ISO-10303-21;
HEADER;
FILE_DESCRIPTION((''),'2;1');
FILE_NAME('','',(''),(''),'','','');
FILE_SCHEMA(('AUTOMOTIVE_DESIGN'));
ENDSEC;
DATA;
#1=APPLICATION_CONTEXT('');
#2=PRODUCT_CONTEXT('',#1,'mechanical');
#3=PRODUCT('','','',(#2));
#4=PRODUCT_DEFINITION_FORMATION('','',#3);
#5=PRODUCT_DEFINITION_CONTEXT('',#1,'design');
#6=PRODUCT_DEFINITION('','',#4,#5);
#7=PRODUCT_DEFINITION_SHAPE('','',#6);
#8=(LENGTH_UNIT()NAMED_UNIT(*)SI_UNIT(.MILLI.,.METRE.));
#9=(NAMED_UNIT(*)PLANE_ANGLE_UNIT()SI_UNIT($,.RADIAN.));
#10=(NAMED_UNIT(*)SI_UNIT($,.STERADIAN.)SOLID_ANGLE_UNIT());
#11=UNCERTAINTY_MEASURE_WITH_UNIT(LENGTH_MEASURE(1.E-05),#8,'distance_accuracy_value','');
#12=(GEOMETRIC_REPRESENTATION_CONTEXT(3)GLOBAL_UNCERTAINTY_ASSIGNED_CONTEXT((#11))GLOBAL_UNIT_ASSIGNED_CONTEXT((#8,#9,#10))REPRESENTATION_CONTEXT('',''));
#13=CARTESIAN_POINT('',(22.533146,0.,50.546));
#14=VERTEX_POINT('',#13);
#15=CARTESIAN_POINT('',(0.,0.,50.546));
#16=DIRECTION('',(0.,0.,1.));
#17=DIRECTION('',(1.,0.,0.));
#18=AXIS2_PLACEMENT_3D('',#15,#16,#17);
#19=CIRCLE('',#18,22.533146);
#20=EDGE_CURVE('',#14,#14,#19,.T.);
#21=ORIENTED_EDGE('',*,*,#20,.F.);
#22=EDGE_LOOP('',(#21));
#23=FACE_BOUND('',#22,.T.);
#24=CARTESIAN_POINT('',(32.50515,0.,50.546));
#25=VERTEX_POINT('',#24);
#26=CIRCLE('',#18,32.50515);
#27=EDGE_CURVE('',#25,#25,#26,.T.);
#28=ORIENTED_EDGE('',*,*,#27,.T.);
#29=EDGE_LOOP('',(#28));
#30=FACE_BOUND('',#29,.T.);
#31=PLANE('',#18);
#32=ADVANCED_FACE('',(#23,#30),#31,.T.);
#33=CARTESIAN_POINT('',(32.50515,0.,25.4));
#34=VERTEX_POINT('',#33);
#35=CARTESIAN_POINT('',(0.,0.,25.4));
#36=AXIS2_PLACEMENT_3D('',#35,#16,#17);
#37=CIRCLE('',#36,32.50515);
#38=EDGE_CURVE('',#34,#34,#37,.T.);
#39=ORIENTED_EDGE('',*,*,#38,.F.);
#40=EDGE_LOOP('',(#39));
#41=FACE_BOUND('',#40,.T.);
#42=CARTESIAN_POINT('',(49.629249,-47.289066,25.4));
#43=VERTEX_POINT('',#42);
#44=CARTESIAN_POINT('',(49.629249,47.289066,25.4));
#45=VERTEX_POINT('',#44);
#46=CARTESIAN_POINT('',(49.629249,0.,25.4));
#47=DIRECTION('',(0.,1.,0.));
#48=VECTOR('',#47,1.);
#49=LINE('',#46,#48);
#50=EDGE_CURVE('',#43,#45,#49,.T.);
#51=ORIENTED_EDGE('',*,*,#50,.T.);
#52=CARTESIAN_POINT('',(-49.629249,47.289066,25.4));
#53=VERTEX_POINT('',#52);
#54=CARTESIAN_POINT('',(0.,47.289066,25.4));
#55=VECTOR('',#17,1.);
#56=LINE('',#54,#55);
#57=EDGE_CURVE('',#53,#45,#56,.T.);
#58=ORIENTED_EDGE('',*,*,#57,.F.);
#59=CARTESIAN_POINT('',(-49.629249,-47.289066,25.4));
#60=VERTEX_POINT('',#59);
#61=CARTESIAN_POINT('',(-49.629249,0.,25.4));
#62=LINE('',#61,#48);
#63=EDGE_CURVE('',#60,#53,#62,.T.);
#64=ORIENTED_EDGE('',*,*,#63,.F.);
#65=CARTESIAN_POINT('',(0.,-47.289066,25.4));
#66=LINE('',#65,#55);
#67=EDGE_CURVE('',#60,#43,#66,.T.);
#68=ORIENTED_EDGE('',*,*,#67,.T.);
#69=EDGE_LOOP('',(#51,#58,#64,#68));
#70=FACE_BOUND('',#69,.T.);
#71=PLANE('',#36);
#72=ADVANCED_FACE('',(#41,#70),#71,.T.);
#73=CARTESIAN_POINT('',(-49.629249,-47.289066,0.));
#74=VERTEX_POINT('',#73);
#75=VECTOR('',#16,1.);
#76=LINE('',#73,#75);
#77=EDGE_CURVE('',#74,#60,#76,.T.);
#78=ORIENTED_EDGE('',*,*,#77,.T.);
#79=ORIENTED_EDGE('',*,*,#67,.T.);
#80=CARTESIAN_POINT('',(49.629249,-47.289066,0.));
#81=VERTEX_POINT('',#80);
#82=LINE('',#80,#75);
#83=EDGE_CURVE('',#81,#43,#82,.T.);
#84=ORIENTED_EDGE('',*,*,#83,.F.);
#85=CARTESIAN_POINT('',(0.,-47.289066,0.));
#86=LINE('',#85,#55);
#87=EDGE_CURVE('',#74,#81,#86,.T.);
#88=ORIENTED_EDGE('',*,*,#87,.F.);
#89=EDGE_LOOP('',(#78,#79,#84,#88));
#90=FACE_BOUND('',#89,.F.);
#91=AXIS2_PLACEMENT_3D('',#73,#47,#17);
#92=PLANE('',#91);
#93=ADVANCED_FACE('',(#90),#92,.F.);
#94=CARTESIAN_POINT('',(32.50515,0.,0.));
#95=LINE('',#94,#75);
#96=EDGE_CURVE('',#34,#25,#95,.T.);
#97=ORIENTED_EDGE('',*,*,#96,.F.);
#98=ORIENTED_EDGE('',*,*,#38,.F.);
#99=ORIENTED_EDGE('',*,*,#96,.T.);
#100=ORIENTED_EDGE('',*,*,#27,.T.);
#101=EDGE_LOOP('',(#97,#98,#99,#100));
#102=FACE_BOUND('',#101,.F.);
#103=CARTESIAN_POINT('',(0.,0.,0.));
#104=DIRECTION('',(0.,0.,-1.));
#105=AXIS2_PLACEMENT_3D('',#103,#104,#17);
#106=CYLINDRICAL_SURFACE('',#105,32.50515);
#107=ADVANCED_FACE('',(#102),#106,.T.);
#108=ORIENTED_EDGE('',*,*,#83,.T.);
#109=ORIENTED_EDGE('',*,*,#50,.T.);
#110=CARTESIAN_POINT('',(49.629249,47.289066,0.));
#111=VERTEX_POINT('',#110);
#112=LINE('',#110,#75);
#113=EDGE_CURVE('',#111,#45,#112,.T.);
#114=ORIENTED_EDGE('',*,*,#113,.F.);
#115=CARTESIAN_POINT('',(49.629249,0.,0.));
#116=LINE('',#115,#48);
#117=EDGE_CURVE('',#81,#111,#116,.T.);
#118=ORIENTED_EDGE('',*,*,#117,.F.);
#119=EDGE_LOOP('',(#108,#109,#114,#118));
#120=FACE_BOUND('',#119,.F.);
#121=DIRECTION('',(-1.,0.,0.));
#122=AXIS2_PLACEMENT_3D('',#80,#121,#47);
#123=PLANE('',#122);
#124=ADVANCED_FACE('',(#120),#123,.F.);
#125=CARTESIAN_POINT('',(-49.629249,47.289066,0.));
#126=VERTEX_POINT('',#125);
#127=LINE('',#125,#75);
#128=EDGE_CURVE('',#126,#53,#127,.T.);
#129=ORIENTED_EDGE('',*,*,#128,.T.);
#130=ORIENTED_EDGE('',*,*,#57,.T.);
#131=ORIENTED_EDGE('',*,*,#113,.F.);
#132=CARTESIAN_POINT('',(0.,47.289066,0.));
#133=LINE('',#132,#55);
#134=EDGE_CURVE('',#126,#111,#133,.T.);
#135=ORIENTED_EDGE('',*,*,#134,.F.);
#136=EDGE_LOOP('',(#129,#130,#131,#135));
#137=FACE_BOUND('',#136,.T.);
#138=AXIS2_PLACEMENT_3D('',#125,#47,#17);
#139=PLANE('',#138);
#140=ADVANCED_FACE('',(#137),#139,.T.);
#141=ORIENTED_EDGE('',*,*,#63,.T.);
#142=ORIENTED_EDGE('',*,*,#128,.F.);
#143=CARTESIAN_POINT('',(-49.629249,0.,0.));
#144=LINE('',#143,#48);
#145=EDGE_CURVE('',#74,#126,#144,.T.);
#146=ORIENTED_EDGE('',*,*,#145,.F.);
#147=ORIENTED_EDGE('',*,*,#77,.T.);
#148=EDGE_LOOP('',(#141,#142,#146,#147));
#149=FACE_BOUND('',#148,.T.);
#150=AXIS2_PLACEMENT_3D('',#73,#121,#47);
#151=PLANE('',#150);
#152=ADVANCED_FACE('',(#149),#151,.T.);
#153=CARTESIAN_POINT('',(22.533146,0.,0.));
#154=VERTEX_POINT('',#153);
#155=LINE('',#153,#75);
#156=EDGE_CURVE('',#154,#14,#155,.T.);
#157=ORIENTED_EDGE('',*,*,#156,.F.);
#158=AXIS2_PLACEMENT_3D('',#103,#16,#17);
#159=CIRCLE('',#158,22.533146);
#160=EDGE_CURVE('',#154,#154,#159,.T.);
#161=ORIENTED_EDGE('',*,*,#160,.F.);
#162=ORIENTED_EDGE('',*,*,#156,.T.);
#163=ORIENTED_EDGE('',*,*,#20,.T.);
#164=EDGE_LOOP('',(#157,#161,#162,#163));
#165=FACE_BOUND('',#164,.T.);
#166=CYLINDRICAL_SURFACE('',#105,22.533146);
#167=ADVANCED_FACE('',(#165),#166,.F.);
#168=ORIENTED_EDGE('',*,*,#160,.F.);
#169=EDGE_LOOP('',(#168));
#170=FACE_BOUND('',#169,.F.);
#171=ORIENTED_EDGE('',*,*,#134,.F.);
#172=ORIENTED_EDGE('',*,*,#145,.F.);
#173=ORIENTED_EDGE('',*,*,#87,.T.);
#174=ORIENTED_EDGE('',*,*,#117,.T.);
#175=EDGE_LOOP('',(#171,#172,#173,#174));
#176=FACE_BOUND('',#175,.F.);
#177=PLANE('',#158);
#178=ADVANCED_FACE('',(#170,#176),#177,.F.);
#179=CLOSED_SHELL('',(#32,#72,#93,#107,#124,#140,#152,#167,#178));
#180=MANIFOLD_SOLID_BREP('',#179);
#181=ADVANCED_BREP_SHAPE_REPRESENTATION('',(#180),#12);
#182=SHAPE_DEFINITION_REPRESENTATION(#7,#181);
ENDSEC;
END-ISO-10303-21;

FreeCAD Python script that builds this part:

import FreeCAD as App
import Part
import Sketcher

doc = App.newDocument("Part")
params = doc.addObject("Spreadsheet::Sheet", "Params")
for row, (alias, value) in enumerate([
    ("pad1_length", "1.99 in"),
    ("pad2_length", "1 in"),
], start=1):
    params.set(f"A{row}", alias)
    params.set(f"B{row}", "=" + value)
    params.setAlias(f"B{row}", alias)

body = doc.addObject("PartDesign::Body", "Body")

sketch1 = body.newObject("Sketcher::SketchObject", "Sketch")
sketch1.AttachmentSupport = (doc.getObject("XY_Plane"), [""])
sketch1.MapMode = "FlatFace"
sketch1.addGeometry([
    Part.Circle(App.Vector(0, 0, 0), App.Vector(0, 0, 1), 32.50515),
    Part.Circle(App.Vector(0, 0, 0), App.Vector(0, 0, 1), 22.533146),
], False)
sketch1.addConstraint([
    Sketcher.Constraint("Coincident", 0, 3, -1, 1),
    Sketcher.Constraint("Coincident", 1, 3, -1, 1),
    Sketcher.Constraint("Diameter", 0, 65.0103),
    Sketcher.Constraint("Diameter", 1, 45.066292),
])
pad1 = body.newObject("PartDesign::Pad", "Pad")
pad1.Profile = sketch1
pad1.setExpression("Length", "Params.pad1_length")

sketch2 = body.newObject("Sketcher::SketchObject", "Sketch001")
sketch2.AttachmentSupport = (doc.getObject("XY_Plane"), [""])
sketch2.MapMode = "FlatFace"
sketch2.addGeometry([
    Part.LineSegment(App.Vector(-49.629249, 47.289066, 0), App.Vector(-49.629249, -47.289066, 0)),
    Part.LineSegment(App.Vector(-49.629249, -47.289066, 0), App.Vector(49.629249, -47.289066, 0)),
    Part.LineSegment(App.Vector(49.629249, -47.289066, 0), App.Vector(49.629249, 47.289066, 0)),
    Part.LineSegment(App.Vector(49.629249, 47.289066, 0), App.Vector(-49.629249, 47.289066, 0)),
    Part.Circle(App.Vector(0, 0, 0), App.Vector(0, 0, 1), 32.50515),
], False)
sketch2.addConstraint([
    Sketcher.Constraint("Coincident", 0, 2, 1, 1),
    Sketcher.Constraint("Coincident", 1, 2, 2, 1),
    Sketcher.Constraint("Coincident", 2, 2, 3, 1),
    Sketcher.Constraint("Coincident", 3, 2, 0, 1),
    Sketcher.Constraint("Vertical", 0),
    Sketcher.Constraint("Horizontal", 1),
    Sketcher.Constraint("Vertical", 2),
    Sketcher.Constraint("Horizontal", 3),
    Sketcher.Constraint("Coincident", 4, 3, -1, 1),
    Sketcher.Constraint("Symmetric", 0, 2, 2, 2, -1, 1),
    Sketcher.Constraint("Diameter", 4, 65.0103),
    Sketcher.Constraint("DistanceX", 1, 1, 1, 2, 99.258498),
    Sketcher.Constraint("DistanceY", 0, 2, 0, 1, 94.578132),
])
pad2 = body.newObject("PartDesign::Pad", "Pad001")
pad2.Profile = sketch2
pad2.setExpression("Length", "Params.pad2_length")

doc.recompute()
